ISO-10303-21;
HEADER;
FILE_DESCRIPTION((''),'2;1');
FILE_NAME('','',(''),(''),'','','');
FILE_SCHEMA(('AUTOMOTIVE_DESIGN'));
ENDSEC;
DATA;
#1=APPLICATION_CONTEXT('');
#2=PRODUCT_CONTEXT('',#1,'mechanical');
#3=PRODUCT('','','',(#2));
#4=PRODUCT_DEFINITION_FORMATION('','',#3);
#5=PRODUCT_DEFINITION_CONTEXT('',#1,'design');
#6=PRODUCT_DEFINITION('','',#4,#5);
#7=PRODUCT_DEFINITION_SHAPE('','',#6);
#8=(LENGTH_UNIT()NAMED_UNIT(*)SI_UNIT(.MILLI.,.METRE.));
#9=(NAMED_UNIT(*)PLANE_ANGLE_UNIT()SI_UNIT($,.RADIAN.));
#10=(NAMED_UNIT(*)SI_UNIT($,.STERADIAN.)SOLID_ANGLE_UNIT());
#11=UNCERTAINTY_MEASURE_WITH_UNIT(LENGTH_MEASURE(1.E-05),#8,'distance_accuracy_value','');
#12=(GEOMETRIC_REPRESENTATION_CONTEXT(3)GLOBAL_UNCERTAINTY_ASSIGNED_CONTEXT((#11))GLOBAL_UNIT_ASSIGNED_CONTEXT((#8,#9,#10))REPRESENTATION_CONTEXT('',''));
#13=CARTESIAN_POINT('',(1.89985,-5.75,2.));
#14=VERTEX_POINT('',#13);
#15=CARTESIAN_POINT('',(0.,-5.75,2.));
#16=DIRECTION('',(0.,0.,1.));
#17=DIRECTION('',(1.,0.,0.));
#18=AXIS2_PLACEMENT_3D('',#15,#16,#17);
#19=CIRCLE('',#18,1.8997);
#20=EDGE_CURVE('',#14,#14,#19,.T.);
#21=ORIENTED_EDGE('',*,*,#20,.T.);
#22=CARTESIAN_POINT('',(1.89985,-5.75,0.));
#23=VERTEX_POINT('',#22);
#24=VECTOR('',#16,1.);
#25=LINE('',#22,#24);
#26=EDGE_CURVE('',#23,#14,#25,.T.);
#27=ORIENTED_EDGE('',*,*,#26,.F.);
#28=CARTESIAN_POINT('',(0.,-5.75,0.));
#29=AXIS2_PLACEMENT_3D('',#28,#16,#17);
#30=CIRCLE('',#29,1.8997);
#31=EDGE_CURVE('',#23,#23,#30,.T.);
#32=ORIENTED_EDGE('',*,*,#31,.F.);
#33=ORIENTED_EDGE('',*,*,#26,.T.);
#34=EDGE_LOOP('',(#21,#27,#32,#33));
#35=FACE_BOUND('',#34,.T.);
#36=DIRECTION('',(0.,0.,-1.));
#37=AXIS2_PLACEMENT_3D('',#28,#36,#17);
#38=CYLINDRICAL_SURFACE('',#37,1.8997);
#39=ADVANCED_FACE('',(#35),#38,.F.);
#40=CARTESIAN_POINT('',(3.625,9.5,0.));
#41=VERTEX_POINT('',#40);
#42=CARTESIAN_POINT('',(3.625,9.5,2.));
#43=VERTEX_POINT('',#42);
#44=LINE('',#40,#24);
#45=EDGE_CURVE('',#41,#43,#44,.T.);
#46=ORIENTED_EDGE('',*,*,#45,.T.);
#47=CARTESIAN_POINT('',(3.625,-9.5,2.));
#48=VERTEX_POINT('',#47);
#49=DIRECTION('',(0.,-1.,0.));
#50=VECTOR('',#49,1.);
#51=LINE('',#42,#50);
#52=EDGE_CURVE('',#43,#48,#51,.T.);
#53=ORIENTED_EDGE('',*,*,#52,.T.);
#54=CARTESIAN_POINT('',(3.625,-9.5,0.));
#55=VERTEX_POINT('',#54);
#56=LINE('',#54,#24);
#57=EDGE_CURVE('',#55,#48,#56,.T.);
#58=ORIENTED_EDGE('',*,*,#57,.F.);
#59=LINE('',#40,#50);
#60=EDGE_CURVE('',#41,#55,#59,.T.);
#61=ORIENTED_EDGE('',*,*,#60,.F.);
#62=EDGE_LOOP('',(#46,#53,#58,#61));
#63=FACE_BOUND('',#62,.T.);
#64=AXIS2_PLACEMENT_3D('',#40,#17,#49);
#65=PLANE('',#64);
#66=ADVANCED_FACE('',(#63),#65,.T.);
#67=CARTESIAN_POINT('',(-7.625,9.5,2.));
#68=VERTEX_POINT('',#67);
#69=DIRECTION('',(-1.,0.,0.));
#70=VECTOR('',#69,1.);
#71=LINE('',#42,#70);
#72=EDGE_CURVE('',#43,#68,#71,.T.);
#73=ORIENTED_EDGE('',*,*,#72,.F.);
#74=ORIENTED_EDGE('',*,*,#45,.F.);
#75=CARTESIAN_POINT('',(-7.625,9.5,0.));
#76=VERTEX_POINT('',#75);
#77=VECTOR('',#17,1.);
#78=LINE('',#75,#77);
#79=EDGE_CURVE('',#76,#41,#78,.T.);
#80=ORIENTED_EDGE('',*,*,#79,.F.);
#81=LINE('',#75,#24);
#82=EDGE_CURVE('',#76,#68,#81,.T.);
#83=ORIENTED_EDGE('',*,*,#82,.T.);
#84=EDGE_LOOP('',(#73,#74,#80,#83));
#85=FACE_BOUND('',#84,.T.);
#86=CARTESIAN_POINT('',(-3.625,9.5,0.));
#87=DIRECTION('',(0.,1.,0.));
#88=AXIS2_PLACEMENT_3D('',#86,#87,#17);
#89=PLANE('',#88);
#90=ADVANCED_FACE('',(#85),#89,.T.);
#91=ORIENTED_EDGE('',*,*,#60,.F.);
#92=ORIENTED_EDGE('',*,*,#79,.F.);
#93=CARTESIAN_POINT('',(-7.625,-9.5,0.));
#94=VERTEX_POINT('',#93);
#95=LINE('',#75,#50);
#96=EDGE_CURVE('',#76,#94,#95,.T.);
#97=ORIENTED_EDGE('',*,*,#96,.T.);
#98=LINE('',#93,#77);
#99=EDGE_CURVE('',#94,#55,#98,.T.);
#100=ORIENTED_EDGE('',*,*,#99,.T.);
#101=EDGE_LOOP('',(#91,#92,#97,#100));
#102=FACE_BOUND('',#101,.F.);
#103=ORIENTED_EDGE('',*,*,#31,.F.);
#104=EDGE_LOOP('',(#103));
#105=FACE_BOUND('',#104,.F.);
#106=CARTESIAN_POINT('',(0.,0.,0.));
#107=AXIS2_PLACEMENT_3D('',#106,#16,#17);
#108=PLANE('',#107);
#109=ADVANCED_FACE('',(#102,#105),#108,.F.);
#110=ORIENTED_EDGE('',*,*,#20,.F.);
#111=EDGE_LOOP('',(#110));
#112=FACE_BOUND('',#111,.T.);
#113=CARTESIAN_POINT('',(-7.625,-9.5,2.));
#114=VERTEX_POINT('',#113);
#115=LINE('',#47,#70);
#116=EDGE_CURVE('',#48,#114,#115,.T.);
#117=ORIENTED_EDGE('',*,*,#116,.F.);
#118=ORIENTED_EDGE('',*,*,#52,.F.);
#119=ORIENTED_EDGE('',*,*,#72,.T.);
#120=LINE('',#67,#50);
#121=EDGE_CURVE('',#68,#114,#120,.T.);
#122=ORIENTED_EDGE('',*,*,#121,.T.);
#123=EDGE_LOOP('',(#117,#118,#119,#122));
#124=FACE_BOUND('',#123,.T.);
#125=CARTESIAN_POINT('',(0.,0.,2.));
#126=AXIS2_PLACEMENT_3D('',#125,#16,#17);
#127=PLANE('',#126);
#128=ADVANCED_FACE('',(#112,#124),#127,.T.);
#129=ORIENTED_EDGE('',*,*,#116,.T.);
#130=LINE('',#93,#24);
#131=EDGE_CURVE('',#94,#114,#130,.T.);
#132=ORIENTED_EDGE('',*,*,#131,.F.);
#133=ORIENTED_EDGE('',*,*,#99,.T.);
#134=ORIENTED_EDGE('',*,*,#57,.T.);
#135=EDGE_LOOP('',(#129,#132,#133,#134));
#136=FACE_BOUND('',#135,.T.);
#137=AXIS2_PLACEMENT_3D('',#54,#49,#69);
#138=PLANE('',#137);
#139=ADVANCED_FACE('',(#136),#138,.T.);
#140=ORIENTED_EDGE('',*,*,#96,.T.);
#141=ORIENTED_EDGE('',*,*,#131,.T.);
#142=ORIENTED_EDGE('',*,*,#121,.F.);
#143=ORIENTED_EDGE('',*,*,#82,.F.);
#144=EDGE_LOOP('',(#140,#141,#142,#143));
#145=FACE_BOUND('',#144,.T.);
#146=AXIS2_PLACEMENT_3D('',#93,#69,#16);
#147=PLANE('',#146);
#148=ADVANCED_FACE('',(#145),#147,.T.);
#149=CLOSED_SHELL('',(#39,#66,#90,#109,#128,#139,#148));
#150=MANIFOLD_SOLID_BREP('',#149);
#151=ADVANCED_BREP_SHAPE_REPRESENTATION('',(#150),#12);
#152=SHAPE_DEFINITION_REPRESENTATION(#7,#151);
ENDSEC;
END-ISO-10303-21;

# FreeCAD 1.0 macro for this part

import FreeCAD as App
import Part
import Sketcher

V = App.Vector
Q = App.Units.Quantity


def add_polygon(sketch, points):
    """Adds a closed chain of lines whose ends are joined by coincident constraints."""
    first, n = sketch.GeometryCount, len(points)
    for a, b in zip(points, points[1:] + points[:1]):
        sketch.addGeometry(Part.LineSegment(App.Vector(*a, 0), App.Vector(*b, 0)), False)
    for i in range(n):
        sketch.addConstraint(Sketcher.Constraint("Coincident", first + i, 2, first + (i + 1) % n, 1))

doc = App.newDocument("Part")
body = doc.addObject("PartDesign::Body", "Body")

# Sketch on XY plane
sketch1 = body.newObject("Sketcher::SketchObject", "Sketch")
sketch1.AttachmentSupport = (doc.getObject("XY_Plane"), [""])
sketch1.MapMode = "FlatFace"
add_polygon(sketch1, [(-3.6, -9.5), (3.6, -9.5), (3.6, 9.5), (-3.6, 9.5)])  # lines 0-3
sketch1.addGeometry(Part.Circle(V(0, -5.8, 0), V(0, 0, 1), 1.9), False)  # 4
sketch1.addConstraint([
    Sketcher.Constraint("Horizontal", 0),
    Sketcher.Constraint("Vertical", 1),
    Sketcher.Constraint("Horizontal", 2),
    Sketcher.Constraint("Vertical", 3),
    Sketcher.Constraint("Symmetric", 0, 2, 2, 2, -1, 1),
    Sketcher.Constraint("PointOnObject", 4, 3, -2),
    Sketcher.Constraint("Diameter", 4, Q("3.7994 mm")),
    Sketcher.Constraint("DistanceY", 1, 1, 1, 2, Q("19 mm")),
    Sketcher.Constraint("DistanceX", 0, 1, 0, 2, Q("7.25 mm")),
    Sketcher.Constraint("DistanceY", 4, 3, -1, 1, Q("5.75 mm")),
])
pad1 = body.newObject("PartDesign::Pad", "Pad")
pad1.Profile = sketch1
pad1.Length = 2

# Sketch on YZ plane
sketch2 = body.newObject("Sketcher::SketchObject", "Sketch001")
sketch2.AttachmentSupport = (doc.getObject("YZ_Plane"), [""])
sketch2.MapMode = "FlatFace"
sketch2.AttachmentOffset = App.Placement(V(0, 0, -3.625), App.Rotation())
add_polygon(sketch2, [(9.5, 2), (9.5, 0), (-9.5, 0), (-9.5, 2)])  # lines 0-3
sketch2.addConstraint([
    Sketcher.Constraint("Vertical", 0),
    Sketcher.Constraint("Horizontal", 1),
    Sketcher.Constraint("Vertical", 2),
    Sketcher.Constraint("Horizontal", 3),
    Sketcher.Constraint("Symmetric", 0, 2, 1, 2, -1, 1),
    Sketcher.Constraint("DistanceX", 1, 2, 1, 1, Q("19 mm")),
    Sketcher.Constraint("DistanceY", 0, 2, 0, 1, Q("2 mm")),
])
pad2 = body.newObject("PartDesign::Pad", "Pad001")
pad2.Profile = sketch2
pad2.Length = 4
pad2.Reversed = True

doc.recompute()
